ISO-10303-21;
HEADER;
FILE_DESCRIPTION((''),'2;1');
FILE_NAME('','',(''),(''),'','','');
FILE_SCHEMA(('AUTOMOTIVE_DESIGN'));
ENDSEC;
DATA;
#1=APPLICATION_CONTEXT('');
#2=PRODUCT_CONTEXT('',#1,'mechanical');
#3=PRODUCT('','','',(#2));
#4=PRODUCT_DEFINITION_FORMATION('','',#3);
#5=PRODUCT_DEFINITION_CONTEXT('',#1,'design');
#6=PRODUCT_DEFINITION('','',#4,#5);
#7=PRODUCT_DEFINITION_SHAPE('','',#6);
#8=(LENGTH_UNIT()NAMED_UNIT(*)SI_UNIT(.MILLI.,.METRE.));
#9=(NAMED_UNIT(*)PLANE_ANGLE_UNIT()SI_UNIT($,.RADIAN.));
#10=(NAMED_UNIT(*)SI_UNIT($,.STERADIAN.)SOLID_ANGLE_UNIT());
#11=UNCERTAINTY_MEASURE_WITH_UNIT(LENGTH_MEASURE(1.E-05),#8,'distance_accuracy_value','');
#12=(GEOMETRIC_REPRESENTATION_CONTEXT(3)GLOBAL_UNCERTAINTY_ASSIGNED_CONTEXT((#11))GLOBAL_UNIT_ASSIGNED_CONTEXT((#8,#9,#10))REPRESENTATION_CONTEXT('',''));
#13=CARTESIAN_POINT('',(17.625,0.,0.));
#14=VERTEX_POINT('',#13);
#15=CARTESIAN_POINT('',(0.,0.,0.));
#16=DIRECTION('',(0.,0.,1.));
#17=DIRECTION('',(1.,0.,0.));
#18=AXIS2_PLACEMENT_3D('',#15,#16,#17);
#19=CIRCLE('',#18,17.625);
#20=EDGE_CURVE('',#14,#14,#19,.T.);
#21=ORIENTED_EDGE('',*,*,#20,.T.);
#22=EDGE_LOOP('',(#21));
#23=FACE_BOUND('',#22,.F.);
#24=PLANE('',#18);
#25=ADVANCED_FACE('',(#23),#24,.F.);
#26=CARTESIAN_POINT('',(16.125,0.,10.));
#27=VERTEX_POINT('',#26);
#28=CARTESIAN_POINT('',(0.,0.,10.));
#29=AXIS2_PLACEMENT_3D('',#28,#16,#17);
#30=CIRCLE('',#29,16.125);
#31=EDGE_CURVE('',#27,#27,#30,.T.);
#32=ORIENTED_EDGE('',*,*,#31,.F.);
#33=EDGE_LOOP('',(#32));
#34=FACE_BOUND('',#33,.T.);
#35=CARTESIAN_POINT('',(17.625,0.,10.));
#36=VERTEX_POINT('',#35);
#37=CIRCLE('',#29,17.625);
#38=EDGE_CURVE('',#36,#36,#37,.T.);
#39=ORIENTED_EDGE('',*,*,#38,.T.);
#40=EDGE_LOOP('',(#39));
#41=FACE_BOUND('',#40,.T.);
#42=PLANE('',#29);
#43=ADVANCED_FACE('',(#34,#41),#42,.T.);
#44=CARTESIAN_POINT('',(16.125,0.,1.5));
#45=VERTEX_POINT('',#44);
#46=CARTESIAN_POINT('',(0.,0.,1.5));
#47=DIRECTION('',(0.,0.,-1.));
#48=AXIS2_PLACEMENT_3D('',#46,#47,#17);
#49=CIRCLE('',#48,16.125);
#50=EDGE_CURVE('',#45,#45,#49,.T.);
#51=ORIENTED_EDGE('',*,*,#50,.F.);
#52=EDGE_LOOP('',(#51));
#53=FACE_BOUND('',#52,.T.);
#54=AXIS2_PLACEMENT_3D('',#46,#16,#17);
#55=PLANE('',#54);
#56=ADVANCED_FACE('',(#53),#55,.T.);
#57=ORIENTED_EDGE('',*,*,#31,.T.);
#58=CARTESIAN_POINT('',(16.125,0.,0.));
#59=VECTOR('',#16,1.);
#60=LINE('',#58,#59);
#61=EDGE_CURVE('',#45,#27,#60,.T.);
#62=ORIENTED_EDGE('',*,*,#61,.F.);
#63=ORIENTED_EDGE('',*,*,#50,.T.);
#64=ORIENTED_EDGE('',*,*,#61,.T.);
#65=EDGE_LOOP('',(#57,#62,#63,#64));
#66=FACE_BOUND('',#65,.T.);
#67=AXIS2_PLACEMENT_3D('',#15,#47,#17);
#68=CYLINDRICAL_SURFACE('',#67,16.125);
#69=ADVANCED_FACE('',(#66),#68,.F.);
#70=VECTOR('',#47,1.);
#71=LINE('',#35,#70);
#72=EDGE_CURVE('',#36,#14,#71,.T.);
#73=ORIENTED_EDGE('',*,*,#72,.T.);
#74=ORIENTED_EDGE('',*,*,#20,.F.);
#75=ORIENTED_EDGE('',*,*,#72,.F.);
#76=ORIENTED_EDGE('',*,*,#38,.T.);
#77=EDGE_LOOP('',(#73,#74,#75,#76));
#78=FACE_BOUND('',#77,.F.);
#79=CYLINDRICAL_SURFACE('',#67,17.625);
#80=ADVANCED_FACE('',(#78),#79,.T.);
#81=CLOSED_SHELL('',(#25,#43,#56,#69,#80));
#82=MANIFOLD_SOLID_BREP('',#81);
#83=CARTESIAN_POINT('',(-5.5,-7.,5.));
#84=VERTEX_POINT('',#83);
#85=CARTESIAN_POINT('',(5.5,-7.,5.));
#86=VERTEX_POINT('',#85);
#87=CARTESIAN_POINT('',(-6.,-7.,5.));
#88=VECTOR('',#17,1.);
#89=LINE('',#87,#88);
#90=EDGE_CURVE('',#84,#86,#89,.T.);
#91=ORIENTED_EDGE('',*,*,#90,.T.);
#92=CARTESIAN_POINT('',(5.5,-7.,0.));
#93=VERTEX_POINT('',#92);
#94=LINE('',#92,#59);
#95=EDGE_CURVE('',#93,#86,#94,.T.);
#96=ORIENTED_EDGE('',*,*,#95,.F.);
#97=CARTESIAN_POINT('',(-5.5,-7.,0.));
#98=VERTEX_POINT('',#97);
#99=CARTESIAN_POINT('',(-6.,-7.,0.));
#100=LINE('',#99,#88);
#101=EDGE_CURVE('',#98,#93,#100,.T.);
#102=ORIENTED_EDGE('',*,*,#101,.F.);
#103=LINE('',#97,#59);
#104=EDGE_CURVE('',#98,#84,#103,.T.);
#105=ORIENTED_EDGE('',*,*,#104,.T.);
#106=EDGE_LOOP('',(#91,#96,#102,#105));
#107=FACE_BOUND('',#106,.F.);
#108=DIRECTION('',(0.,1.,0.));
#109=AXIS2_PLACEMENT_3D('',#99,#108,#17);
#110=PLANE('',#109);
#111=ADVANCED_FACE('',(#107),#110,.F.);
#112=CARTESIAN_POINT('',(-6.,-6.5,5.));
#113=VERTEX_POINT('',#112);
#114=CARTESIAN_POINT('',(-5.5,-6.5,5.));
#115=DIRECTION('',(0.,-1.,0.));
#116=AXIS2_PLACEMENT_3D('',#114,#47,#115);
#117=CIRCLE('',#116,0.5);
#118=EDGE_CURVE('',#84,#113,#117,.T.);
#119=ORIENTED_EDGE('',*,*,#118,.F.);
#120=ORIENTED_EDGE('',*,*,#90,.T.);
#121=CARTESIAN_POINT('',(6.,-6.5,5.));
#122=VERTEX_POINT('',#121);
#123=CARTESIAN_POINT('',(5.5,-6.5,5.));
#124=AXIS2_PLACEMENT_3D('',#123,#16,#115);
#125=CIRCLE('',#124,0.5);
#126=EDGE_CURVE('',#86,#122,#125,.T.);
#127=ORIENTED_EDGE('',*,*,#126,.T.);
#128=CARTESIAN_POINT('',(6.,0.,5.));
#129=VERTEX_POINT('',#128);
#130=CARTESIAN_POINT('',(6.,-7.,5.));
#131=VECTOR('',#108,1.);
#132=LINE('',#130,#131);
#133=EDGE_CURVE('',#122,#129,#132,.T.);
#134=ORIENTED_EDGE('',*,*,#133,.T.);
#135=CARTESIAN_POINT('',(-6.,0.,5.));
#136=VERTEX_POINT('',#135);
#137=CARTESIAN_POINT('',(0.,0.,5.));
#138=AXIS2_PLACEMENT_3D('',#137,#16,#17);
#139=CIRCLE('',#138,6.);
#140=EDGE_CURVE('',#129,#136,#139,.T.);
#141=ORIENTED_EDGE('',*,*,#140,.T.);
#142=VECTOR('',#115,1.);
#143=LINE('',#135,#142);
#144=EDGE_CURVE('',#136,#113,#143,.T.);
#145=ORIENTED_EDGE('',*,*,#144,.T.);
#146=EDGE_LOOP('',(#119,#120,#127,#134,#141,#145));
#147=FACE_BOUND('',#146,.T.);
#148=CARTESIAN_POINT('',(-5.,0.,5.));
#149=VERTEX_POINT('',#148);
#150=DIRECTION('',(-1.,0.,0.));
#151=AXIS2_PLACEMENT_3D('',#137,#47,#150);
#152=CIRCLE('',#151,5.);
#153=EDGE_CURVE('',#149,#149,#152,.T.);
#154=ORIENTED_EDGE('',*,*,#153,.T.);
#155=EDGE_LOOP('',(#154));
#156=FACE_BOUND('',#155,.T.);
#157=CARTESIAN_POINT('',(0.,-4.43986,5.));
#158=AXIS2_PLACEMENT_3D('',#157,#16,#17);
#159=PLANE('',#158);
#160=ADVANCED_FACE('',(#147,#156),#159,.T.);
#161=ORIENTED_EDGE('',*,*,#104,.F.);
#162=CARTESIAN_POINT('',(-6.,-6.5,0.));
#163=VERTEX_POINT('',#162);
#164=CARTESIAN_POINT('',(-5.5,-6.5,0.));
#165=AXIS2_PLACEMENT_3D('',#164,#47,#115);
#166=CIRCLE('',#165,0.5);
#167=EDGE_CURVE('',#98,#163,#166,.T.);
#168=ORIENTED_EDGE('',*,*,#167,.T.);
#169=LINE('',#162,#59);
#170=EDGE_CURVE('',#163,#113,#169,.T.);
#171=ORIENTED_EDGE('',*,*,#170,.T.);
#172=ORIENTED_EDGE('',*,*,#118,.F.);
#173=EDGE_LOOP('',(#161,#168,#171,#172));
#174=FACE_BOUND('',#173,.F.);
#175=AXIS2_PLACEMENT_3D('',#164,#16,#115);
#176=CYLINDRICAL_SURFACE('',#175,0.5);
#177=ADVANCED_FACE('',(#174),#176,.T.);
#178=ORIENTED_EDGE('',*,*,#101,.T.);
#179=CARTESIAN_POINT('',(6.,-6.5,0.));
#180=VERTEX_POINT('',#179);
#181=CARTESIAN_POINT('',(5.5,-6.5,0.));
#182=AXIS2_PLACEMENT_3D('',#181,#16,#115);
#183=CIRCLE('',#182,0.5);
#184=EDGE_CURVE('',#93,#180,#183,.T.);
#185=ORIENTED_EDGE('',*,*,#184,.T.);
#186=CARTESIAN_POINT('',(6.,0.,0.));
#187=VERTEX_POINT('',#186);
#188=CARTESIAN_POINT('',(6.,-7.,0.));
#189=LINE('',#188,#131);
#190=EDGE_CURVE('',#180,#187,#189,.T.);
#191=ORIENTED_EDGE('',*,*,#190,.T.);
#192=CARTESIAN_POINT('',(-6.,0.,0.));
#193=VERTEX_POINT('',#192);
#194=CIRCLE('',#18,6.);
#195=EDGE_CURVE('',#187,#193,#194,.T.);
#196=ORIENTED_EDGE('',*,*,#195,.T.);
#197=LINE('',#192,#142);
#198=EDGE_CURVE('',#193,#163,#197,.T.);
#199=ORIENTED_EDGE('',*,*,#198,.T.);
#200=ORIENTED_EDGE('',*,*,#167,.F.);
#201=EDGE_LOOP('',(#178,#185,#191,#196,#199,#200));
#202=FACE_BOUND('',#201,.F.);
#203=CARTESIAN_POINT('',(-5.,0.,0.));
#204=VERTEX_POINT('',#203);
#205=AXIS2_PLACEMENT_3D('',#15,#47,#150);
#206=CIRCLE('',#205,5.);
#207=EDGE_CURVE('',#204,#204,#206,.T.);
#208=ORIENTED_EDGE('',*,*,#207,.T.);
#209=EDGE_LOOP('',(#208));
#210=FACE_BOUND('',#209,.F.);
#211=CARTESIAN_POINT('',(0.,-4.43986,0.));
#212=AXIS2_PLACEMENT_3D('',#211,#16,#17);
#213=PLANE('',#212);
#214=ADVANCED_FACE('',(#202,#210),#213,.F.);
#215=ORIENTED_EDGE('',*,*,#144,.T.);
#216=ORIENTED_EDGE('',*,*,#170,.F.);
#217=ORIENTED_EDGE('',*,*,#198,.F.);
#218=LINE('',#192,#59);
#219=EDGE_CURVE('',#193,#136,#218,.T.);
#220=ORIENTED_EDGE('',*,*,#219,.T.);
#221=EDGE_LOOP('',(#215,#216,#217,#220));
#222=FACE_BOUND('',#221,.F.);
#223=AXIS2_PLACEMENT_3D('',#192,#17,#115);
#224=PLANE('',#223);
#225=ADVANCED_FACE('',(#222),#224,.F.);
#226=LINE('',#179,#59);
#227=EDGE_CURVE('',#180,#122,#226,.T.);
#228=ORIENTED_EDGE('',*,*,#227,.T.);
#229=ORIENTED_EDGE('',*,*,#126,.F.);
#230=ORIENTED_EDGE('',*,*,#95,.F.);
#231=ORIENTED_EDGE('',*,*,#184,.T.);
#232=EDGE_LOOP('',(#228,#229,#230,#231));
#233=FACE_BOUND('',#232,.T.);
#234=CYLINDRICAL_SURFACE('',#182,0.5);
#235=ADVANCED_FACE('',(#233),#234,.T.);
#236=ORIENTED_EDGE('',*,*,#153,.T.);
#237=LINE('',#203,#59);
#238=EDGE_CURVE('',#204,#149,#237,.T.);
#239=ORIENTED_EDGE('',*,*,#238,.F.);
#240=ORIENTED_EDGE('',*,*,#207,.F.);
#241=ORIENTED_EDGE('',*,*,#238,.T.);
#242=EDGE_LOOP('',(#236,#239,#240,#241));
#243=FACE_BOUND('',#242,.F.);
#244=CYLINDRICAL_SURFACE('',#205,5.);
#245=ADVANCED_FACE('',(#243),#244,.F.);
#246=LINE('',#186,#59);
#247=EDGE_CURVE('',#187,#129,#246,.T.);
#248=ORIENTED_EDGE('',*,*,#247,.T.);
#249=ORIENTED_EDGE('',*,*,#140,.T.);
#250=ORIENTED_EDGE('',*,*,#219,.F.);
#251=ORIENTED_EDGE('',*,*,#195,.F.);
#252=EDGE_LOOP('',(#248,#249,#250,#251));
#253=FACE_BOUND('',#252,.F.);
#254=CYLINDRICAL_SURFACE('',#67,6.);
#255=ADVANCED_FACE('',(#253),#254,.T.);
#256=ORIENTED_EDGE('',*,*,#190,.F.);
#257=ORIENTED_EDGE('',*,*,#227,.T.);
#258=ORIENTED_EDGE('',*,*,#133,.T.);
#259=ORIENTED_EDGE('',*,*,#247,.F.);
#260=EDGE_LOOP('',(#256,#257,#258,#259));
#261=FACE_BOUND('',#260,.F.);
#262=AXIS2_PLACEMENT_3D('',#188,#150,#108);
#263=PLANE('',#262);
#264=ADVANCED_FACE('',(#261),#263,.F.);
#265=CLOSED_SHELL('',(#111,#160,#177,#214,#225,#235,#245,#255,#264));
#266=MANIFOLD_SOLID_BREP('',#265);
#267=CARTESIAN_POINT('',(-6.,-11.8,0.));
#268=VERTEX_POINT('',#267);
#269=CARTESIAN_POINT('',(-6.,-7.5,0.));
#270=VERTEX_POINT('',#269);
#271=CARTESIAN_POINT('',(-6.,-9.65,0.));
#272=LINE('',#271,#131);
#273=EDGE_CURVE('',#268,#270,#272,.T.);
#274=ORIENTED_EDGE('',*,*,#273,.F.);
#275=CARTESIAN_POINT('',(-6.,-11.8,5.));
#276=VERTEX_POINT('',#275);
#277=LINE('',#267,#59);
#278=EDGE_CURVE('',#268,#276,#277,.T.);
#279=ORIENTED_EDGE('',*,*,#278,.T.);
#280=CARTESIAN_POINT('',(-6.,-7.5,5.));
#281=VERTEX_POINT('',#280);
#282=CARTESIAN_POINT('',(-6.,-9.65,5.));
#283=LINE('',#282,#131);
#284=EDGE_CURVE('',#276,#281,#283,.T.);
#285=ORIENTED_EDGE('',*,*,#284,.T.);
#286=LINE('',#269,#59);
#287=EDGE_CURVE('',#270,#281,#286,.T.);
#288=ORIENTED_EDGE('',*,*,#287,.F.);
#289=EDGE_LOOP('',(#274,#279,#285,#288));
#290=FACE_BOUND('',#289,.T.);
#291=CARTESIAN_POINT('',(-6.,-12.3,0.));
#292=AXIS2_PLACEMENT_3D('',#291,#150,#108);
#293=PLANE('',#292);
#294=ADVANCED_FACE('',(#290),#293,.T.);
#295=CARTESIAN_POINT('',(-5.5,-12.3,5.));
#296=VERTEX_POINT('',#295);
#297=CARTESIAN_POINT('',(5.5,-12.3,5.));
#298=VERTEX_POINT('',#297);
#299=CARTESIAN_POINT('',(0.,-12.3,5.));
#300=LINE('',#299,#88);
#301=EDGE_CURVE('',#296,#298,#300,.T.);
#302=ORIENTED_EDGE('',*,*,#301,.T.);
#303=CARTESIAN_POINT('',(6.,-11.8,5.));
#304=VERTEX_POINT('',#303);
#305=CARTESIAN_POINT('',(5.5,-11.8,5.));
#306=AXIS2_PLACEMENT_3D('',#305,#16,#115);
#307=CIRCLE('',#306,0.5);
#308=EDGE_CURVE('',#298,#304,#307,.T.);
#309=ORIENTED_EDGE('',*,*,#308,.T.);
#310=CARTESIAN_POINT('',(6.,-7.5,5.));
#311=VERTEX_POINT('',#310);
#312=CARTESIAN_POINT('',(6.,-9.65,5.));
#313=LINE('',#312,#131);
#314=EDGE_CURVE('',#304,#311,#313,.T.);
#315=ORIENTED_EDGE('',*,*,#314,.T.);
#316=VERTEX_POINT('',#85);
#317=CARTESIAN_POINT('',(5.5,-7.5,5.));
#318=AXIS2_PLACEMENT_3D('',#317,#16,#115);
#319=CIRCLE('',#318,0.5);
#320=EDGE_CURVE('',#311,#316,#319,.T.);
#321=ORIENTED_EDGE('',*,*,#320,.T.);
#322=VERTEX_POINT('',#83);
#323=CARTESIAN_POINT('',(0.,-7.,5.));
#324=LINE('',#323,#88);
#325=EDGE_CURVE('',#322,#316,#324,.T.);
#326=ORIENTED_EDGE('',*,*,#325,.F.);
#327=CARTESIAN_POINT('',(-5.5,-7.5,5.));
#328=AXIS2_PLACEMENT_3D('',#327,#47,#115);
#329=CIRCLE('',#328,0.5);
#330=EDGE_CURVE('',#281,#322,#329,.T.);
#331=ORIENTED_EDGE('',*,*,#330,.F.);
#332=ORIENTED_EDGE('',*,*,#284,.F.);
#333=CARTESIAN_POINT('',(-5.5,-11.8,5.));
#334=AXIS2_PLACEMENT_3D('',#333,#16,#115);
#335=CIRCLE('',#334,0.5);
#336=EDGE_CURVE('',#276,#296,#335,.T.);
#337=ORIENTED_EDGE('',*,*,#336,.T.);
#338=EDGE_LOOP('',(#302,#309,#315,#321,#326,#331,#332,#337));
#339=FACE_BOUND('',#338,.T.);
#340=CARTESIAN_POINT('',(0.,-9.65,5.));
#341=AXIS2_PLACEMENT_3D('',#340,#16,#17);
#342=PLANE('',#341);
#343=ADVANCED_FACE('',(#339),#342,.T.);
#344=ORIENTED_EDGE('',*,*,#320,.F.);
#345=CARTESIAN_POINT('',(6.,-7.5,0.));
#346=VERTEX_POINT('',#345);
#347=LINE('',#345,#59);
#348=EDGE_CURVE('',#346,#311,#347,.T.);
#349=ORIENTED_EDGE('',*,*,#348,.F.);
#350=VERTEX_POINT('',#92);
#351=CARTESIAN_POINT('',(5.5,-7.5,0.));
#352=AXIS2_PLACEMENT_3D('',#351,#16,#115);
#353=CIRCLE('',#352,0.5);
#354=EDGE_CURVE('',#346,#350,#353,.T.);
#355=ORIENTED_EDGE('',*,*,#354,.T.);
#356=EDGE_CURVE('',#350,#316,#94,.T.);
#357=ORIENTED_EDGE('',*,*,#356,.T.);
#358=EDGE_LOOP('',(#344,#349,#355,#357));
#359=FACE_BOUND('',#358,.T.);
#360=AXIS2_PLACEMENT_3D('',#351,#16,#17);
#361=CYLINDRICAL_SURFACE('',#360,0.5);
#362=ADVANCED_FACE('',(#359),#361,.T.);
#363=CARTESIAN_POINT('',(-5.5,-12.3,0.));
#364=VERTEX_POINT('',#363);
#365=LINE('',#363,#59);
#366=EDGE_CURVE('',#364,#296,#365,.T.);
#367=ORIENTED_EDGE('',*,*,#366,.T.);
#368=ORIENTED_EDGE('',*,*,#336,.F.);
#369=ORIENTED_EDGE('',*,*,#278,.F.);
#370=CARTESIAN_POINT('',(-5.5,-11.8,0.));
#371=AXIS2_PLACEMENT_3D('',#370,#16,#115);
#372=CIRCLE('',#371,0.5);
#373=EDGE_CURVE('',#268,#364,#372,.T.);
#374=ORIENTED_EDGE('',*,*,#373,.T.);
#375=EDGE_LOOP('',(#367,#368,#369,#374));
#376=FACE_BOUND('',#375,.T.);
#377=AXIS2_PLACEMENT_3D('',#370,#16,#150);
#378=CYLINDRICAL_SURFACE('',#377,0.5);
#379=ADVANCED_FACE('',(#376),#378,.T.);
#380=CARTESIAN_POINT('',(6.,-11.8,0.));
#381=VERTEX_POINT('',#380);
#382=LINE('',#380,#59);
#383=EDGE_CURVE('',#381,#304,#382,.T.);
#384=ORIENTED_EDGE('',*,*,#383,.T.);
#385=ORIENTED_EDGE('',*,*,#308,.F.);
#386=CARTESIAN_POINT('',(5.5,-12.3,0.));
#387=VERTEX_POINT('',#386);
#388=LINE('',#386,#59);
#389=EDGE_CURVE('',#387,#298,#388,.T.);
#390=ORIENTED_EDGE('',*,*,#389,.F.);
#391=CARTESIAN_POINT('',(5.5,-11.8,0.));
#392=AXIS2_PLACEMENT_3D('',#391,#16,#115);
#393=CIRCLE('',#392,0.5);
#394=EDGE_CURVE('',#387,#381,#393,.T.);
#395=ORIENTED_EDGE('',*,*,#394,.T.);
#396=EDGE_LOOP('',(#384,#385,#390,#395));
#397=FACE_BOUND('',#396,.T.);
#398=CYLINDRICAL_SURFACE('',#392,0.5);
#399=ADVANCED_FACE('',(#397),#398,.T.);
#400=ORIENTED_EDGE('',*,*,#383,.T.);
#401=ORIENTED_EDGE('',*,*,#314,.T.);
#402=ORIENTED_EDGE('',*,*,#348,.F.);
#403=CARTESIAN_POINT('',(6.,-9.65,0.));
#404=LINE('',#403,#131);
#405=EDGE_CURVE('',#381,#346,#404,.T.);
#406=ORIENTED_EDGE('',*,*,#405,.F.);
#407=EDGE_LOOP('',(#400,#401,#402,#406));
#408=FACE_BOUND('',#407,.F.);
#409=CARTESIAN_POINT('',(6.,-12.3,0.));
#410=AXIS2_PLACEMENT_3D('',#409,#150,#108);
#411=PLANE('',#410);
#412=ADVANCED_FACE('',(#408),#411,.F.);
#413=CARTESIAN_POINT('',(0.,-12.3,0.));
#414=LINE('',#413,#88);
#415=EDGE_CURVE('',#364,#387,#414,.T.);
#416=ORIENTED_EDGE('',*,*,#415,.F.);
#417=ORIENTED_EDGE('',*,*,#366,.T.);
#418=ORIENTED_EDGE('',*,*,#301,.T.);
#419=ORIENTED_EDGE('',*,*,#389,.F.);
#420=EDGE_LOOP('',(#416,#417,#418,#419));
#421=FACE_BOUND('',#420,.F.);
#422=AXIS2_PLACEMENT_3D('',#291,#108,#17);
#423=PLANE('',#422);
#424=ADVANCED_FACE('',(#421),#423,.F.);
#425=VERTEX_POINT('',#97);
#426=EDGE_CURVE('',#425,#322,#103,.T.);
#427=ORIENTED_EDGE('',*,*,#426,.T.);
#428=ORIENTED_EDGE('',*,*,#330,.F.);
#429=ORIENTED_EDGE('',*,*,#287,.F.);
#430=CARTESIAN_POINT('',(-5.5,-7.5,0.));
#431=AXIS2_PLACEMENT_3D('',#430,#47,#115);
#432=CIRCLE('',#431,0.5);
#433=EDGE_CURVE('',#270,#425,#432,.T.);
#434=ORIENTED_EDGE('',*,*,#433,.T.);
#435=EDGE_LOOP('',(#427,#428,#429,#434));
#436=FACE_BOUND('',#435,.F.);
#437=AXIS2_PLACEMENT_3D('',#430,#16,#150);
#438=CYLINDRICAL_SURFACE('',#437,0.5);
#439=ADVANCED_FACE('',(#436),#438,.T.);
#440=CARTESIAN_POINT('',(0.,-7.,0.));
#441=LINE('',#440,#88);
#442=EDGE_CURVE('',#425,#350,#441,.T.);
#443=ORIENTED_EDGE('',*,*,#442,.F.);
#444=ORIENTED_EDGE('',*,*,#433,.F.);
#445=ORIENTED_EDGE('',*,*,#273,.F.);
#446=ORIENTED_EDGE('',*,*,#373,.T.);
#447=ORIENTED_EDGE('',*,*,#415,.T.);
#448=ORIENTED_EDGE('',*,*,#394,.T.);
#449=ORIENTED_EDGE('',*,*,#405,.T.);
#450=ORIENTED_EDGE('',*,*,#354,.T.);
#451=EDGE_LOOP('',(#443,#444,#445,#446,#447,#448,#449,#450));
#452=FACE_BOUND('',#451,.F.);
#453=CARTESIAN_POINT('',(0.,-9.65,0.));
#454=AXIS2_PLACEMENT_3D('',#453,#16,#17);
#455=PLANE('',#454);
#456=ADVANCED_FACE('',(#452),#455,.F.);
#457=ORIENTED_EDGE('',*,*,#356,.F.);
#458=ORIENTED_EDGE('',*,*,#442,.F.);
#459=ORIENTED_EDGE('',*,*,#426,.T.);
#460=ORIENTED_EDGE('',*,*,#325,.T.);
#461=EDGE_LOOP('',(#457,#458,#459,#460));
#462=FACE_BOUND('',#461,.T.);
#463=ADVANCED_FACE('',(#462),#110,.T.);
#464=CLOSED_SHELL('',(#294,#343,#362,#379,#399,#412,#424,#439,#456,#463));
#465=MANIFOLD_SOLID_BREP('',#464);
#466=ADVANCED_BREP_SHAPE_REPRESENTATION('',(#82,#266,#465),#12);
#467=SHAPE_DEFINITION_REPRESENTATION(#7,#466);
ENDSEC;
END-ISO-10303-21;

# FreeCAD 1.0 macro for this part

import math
import FreeCAD as App
import Part
import Sketcher

V = App.Vector
Q = App.Units.Quantity


def edges_at(feature, points):
    """Names of the edges that pass closest to the given points."""
    edges = feature.Shape.Edges
    near = lambda p: min(range(len(edges)), key=lambda i: edges[i].distToShape(Part.Vertex(*p))[0])
    return sorted({f"Edge{near(p) + 1}" for p in points})

doc = App.newDocument("Part")
body = doc.addObject("PartDesign::Body", "Body")

# Sketch on XY plane
sketch1 = body.newObject("Sketcher::SketchObject", "Sketch")
sketch1.AttachmentSupport = (doc.getObject("XY_Plane"), [""])
sketch1.MapMode = "FlatFace"
sketch1.addGeometry(Part.Circle(V(0, 0, 0), V(0, 0, 1), 18), False)
sketch1.addConstraint(Sketcher.Constraint("Coincident", 0, 3, -1, 1))
sketch1.addConstraint(Sketcher.Constraint("Diameter", 0, Q("35.25 mm")))
pad1 = body.newObject("PartDesign::Pad", "Pad")
pad1.Profile = sketch1
pad1.Length = 1.5

# Sketch on XY plane
sketch2 = body.newObject("Sketcher::SketchObject", "Sketch001")
sketch2.AttachmentSupport = (doc.getObject("XY_Plane"), [""])
sketch2.MapMode = "FlatFace"
sketch2.addGeometry(Part.Circle(V(0, 0, 0), V(0, 0, 1), 18), False)
sketch2.addGeometry(Part.Circle(V(0, 0, 0), V(0, 0, 1), 16), False)
sketch2.addConstraint(Sketcher.Constraint("Coincident", 0, 3, -1, 1))
sketch2.addConstraint(Sketcher.Constraint("Coincident", 1, 3, -1, 1))
sketch2.addConstraint(Sketcher.Constraint("Diameter", 0, Q("35.25 mm")))
sketch2.addConstraint(Sketcher.Constraint("Diameter", 1, Q("32.25 mm")))
pad2 = body.newObject("PartDesign::Pad", "Pad001")
pad2.Profile = sketch2
pad2.Length = 10
body2 = doc.addObject("PartDesign::Body", "Body001")

# Sketch on XY plane
sketch3 = body2.newObject("Sketcher::SketchObject", "Sketch002")
sketch3.AttachmentSupport = (doc.getObject("XY_Plane001"), [""])
sketch3.MapMode = "FlatFace"
sketch3.addGeometry(Part.LineSegment(V(-6, -7, 0), V(6, -7, 0)), False)
sketch3.addGeometry(Part.LineSegment(V(6, -7, 0), V(6, 0, 0)), False)
sketch3.addGeometry(Part.ArcOfCircle(Part.Circle(V(0, 0, 0), V(0, 0, 1), 6), math.radians(0), math.radians(180)), False)
sketch3.addGeometry(Part.LineSegment(V(-6, 0, 0), V(-6, -7, 0)), False)
sketch3.addGeometry(Part.Circle(V(0, 0, 0), V(0, 0, 1), 5), False)
sketch3.addConstraint(Sketcher.Constraint("Coincident", 0, 2, 1, 1))
sketch3.addConstraint(Sketcher.Constraint("Tangent", 1, 2, 2, 1))
sketch3.addConstraint(Sketcher.Constraint("Tangent", 2, 2, 3, 1))
sketch3.addConstraint(Sketcher.Constraint("Coincident", 3, 2, 0, 1))
sketch3.addConstraint(Sketcher.Constraint("Horizontal", 0))
sketch3.addConstraint(Sketcher.Constraint("Vertical", 1))
sketch3.addConstraint(Sketcher.Constraint("Vertical", 3))
sketch3.addConstraint(Sketcher.Constraint("Coincident", 2, 3, -1, 1))
sketch3.addConstraint(Sketcher.Constraint("Coincident", 4, 3, -1, 1))
sketch3.addConstraint(Sketcher.Constraint("Diameter", 4, Q("10 mm")))
sketch3.addConstraint(Sketcher.Constraint("Radius", 2, Q("6 mm")))
sketch3.addConstraint(Sketcher.Constraint("DistanceY", 1, 1, 1, 2, Q("7 mm")))
pad3 = body2.newObject("PartDesign::Pad", "Pad002")
pad3.Profile = sketch3
pad3.Length = 5
doc.recompute()

fillet = body2.newObject("PartDesign::Fillet", "Fillet")
fillet.Base = (pad3, edges_at(pad3, [(-6, -7, 2.5), (6, -7, 2.5)]))
fillet.Radius = 0.5
body3 = doc.addObject("PartDesign::Body", "Body002")

# Sketch on XY plane
sketch4 = body3.newObject("Sketcher::SketchObject", "Sketch003")
sketch4.AttachmentSupport = (doc.getObject("XY_Plane002"), [""])
sketch4.MapMode = "FlatFace"
sketch4.addGeometry(Part.LineSegment(V(-6, -7, 0), V(-6, -12, 0)), False)
sketch4.addGeometry(Part.LineSegment(V(-6, -12, 0), V(6, -12, 0)), False)
sketch4.addGeometry(Part.LineSegment(V(6, -12, 0), V(6, -7, 0)), False)
sketch4.addGeometry(Part.LineSegment(V(6, -7, 0), V(-6, -7, 0)), False)
sketch4.addConstraint(Sketcher.Constraint("Coincident", 0, 2, 1, 1))
sketch4.addConstraint(Sketcher.Constraint("Coincident", 1, 2, 2, 1))
sketch4.addConstraint(Sketcher.Constraint("Coincident", 2, 2, 3, 1))
sketch4.addConstraint(Sketcher.Constraint("Coincident", 3, 2, 0, 1))
sketch4.addConstraint(Sketcher.Constraint("Vertical", 0))
sketch4.addConstraint(Sketcher.Constraint("Horizontal", 1))
sketch4.addConstraint(Sketcher.Constraint("Vertical", 2))
sketch4.addConstraint(Sketcher.Constraint("Horizontal", 3))
sketch4.addConstraint(Sketcher.Constraint("DistanceX", 1, 1, 1, 2, Q("12 mm")))
sketch4.addConstraint(Sketcher.Constraint("DistanceY", 0, 2, 0, 1, Q("5.3 mm")))
sketch4.addConstraint(Sketcher.Constraint("DistanceX", 0, 2, -1, 1, Q("6 mm")))
sketch4.addConstraint(Sketcher.Constraint("DistanceY", 2, 2, -1, 1, Q("7 mm")))
pad4 = body3.newObject("PartDesign::Pad", "Pad003")
pad4.Profile = sketch4
pad4.Length = 5
doc.recompute()

fillet2 = body3.newObject("PartDesign::Fillet", "Fillet001")
fillet2.Base = (pad4, edges_at(pad4, [
    (-6, -7, 2.5),
    (6, -7, 2.5),
    (6, -12.3, 2.5),
    (-6, -12.3, 2.5),
]))
fillet2.Radius = 0.5

doc.recompute()
